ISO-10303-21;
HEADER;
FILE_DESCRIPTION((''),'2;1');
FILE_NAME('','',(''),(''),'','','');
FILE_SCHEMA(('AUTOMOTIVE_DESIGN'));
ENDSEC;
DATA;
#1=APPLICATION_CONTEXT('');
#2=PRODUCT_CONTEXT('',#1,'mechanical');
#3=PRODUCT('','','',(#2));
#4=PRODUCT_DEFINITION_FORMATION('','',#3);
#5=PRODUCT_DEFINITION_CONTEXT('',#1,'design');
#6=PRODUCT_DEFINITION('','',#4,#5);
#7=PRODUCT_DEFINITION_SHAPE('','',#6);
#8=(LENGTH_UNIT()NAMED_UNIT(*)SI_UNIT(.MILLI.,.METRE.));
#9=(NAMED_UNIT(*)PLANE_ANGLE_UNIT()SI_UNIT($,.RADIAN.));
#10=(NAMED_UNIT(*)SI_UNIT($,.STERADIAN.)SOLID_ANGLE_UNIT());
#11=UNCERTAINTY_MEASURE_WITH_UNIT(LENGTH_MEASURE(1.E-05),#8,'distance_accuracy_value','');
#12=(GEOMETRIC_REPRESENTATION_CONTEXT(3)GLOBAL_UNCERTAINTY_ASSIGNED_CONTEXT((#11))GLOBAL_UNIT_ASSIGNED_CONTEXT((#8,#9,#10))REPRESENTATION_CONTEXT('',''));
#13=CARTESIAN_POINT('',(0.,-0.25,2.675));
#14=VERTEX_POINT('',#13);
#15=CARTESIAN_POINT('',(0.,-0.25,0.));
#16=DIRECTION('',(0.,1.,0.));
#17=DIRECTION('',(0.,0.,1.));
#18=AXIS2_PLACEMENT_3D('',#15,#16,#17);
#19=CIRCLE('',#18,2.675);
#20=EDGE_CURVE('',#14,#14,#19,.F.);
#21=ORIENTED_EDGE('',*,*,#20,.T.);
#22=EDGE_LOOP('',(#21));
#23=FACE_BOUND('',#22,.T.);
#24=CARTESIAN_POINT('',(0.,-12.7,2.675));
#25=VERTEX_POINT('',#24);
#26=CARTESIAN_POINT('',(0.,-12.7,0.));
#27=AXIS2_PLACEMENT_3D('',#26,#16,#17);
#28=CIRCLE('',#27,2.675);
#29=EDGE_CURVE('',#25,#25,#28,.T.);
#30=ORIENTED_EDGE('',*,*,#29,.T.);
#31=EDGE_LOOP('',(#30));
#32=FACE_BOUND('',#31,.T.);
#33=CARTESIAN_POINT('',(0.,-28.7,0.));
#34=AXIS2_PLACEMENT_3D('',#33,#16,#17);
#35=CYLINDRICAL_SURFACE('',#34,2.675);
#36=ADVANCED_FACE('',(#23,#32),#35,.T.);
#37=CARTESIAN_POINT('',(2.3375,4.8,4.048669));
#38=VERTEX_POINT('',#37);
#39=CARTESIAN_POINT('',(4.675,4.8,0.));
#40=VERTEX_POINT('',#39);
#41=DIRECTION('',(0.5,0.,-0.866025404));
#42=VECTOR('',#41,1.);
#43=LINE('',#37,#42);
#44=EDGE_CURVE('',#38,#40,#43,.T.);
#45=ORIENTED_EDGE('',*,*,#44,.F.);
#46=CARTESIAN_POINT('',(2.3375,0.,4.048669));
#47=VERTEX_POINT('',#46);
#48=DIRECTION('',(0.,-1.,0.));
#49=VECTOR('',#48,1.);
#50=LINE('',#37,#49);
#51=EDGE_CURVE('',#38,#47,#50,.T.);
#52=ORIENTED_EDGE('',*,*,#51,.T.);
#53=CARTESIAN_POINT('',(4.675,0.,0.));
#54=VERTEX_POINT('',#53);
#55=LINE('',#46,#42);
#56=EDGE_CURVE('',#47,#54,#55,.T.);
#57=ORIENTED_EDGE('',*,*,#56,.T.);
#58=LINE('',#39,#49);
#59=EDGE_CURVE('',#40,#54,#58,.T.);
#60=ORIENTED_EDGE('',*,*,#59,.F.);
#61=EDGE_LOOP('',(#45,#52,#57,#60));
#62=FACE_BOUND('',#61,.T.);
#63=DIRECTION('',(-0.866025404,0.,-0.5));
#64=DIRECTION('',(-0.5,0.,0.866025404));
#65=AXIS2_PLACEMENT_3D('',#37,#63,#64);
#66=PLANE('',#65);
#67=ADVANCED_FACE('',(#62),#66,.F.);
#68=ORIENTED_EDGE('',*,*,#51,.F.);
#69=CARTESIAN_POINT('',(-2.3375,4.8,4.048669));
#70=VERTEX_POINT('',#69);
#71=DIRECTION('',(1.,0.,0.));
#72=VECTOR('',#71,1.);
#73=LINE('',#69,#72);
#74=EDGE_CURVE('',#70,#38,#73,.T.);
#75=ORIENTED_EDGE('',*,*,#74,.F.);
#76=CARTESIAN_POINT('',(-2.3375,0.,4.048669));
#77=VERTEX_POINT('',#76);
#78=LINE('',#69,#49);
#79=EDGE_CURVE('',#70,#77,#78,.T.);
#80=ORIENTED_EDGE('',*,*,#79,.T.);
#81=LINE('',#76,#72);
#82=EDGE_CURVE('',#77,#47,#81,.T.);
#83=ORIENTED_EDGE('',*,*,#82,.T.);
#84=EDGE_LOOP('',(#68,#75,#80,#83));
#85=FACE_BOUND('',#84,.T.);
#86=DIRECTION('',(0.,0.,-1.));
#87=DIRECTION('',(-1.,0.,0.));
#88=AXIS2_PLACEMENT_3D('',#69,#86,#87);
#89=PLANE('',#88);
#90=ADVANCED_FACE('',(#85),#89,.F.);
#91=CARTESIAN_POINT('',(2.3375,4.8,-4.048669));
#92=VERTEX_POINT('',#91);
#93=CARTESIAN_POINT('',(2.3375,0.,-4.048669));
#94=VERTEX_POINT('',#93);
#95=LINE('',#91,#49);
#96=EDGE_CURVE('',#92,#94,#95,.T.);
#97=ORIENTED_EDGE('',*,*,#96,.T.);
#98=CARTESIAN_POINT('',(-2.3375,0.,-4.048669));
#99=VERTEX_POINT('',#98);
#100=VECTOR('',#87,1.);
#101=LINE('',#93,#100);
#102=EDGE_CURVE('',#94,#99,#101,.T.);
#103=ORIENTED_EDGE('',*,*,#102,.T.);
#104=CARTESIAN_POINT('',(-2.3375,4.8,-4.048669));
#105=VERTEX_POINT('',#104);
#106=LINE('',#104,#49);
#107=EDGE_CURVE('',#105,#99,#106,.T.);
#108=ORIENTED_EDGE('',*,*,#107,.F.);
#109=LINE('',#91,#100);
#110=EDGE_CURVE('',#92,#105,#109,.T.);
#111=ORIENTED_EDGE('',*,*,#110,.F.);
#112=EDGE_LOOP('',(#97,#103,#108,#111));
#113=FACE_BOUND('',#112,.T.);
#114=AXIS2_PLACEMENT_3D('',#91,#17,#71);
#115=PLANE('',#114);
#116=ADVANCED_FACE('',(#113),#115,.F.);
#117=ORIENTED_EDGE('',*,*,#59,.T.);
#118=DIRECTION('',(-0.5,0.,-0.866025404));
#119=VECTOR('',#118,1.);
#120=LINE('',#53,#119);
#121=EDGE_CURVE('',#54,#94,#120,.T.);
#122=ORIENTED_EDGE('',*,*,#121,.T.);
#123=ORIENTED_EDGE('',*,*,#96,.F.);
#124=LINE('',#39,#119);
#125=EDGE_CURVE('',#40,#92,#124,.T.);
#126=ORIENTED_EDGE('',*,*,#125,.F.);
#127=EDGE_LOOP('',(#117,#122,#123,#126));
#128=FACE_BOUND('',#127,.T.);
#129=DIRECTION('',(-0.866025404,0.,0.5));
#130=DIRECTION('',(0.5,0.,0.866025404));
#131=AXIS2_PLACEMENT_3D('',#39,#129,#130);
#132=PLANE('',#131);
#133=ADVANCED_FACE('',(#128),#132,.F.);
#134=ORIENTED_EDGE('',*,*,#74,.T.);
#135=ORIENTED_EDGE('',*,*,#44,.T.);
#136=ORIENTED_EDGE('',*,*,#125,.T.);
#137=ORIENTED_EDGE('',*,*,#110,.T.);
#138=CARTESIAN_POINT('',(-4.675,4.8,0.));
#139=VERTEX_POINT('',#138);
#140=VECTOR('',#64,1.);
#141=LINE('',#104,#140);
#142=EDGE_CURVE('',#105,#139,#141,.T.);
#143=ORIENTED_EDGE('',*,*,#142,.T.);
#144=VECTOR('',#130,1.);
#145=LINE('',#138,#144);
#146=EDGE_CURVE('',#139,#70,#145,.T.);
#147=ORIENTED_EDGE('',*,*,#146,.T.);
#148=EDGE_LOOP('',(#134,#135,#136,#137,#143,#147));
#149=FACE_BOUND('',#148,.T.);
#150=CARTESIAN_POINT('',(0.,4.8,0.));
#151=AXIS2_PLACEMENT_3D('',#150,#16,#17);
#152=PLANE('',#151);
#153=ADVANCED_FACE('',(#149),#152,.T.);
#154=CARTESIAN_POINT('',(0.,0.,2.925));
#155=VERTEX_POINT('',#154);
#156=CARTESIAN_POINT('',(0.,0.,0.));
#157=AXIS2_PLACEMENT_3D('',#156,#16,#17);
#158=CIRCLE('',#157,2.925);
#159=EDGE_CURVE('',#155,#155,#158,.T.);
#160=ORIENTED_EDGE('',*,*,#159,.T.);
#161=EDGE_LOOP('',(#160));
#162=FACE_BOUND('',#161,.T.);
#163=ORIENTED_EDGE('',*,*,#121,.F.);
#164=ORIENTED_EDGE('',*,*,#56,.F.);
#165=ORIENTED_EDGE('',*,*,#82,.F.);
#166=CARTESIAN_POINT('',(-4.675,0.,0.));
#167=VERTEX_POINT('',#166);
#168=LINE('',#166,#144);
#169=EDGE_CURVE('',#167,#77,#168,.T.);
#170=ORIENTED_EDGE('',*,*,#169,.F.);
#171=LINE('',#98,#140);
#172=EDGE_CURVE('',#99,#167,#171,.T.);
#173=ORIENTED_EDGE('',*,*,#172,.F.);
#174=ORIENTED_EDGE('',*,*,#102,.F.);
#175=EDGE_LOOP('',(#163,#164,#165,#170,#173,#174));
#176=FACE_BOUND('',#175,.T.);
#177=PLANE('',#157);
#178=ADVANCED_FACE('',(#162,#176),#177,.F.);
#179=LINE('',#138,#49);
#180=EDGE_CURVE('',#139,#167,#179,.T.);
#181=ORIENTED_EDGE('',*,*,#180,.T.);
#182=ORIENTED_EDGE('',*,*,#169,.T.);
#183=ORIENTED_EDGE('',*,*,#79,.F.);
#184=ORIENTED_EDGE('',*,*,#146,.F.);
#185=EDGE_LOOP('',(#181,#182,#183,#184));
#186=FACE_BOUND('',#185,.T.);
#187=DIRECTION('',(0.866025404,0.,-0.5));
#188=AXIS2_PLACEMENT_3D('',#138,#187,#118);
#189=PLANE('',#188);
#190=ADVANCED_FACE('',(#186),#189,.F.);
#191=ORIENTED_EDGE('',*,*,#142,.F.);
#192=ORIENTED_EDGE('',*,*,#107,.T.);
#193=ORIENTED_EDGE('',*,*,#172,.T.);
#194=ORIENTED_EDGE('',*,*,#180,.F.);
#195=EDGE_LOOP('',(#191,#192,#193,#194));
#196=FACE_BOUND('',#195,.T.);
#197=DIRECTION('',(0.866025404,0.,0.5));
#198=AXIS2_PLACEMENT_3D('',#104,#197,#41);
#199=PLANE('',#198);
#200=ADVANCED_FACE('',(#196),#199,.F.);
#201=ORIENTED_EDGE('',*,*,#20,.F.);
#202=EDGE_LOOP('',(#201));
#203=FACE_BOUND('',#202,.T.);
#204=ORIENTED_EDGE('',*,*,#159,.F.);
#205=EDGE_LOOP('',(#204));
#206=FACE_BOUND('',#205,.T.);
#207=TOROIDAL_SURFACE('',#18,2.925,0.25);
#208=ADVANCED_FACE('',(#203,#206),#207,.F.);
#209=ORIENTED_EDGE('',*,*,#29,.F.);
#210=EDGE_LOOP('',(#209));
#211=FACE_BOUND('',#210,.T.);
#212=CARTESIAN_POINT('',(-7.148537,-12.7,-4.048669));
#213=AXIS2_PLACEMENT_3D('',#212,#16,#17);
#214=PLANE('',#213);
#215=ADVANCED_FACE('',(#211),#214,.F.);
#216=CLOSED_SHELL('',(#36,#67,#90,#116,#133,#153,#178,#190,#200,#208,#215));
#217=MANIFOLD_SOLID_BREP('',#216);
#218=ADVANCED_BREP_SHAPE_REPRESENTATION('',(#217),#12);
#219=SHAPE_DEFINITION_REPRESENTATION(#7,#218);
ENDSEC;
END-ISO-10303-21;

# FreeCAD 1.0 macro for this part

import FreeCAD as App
import Part
import Sketcher
from FreeCAD import Vector
Q = App.Units.Quantity


def edges_at(feature, points):
    """Names of the edges that pass closest to the given points."""
    edges = feature.Shape.Edges
    near = lambda p: min(range(len(edges)), key=lambda i: edges[i].distToShape(Part.Vertex(*p))[0])
    return sorted({f"Edge{near(p) + 1}" for p in points})

doc = App.newDocument("Part")
params = doc.addObject("Spreadsheet::Sheet", "Params")
for row, (alias, value) in enumerate([
    ("pad1_length", "4.8 mm"),
    ("sketch2_diameter", "5.35 mm"),
    ("pad2_length", "28.7 mm"),
    ("fillet_radius", "0.25 mm"),
], start=1):
    params.set(f"A{row}", alias)
    params.set(f"B{row}", "=" + value)
    params.setAlias(f"B{row}", alias)

body = doc.addObject("PartDesign::Body", "Body")

sketch1 = doc.addObject("Sketcher::SketchObject", "Sketch")
body.addObject(sketch1)
sketch1.AttachmentSupport = (doc.XZ_Plane, [""])
sketch1.MapMode = "FlatFace"
sketch1.addGeometry([
    Part.LineSegment(Vector(-2.3375, -4.048669, 0), Vector(-4.675, 0, 0)),
    Part.LineSegment(Vector(-4.675, 0, 0), Vector(-2.3375, 4.048669, 0)),
    Part.LineSegment(Vector(-2.3375, 4.048669, 0), Vector(2.3375, 4.048669, 0)),
    Part.LineSegment(Vector(2.3375, 4.048669, 0), Vector(4.675, 0, 0)),
    Part.LineSegment(Vector(4.675, 0, 0), Vector(2.3375, -4.048669, 0)),
    Part.LineSegment(Vector(2.3375, -4.048669, 0), Vector(-2.3375, -4.048669, 0)),
], False)
sketch1.addConstraint([
    Sketcher.Constraint("Coincident", 0, 2, 1, 1),
    Sketcher.Constraint("Coincident", 1, 2, 2, 1),
    Sketcher.Constraint("Coincident", 2, 2, 3, 1),
    Sketcher.Constraint("Coincident", 3, 2, 4, 1),
    Sketcher.Constraint("Coincident", 4, 2, 5, 1),
    Sketcher.Constraint("Coincident", 5, 2, 0, 1),
    Sketcher.Constraint("Horizontal", 2),
    Sketcher.Constraint("Horizontal", 5),
    Sketcher.Constraint("Symmetric", 0, 2, 3, 2, -1, 1),
    Sketcher.Constraint("Symmetric", 1, 2, 4, 2, -1, 1),
    Sketcher.Constraint("PointOnObject", 0, 2, -1),
    Sketcher.Constraint("Parallel", 0, 3),
    Sketcher.Constraint("Vertical", 2, 2, 4, 2),
    Sketcher.Constraint("Angle", 0, Q("120 deg")),
    Sketcher.Constraint("DistanceX", 2, 1, 2, 2, 4.675),
    Sketcher.Constraint("DistanceX", 0, 2, 3, 2, 9.35),
])
pad1 = doc.addObject("PartDesign::Pad", "Pad")
body.addObject(pad1)
pad1.Profile = sketch1
pad1.setExpression("Length", "Params.pad1_length")
pad1.Reversed = True

sketch2 = doc.addObject("Sketcher::SketchObject", "Sketch001")
body.addObject(sketch2)
sketch2.AttachmentSupport = (doc.XZ_Plane, [""])
sketch2.MapMode = "FlatFace"
sketch2.addGeometry(Part.Circle(Vector(0, 0, 0), Vector(0, 0, 1), 2.675), False)
sketch2.addConstraint([
    Sketcher.Constraint("Coincident", 0, 3, -1, 1),
    Sketcher.Constraint("Diameter", 0, 5.35),
])
sketch2.setExpression("Constraints[1]", "Params.sketch2_diameter")
pad2 = doc.addObject("PartDesign::Pad", "Pad001")
body.addObject(pad2)
pad2.Profile = sketch2
pad2.setExpression("Length", "Params.pad2_length")
doc.recompute()

fillet = doc.addObject("PartDesign::Fillet", "Fillet")
body.addObject(fillet)
fillet.Base = (pad2, edges_at(pad2, [(0, 0, 2.675)]))
fillet.setExpression("Radius", "Params.fillet_radius")

sketch3 = doc.addObject("Sketcher::SketchObject", "Sketch002")
body.addObject(sketch3)
sketch3.AttachmentSupport = (doc.XY_Plane, [""])
sketch3.MapMode = "FlatFace"
sketch3.addGeometry([
    Part.LineSegment(Vector(-7.148537, -12.7, 0), Vector(-7.148537, -31.873595, 0)),
    Part.LineSegment(Vector(-7.148537, -31.873595, 0), Vector(8.146007, -31.873595, 0)),
    Part.LineSegment(Vector(8.146007, -31.873595, 0), Vector(8.146007, -12.7, 0)),
    Part.LineSegment(Vector(8.146007, -12.7, 0), Vector(-7.148537, -12.7, 0)),
], False)
sketch3.addConstraint([
    Sketcher.Constraint("Coincident", 0, 2, 1, 1),
    Sketcher.Constraint("Coincident", 1, 2, 2, 1),
    Sketcher.Constraint("Coincident", 2, 2, 3, 1),
    Sketcher.Constraint("Coincident", 3, 2, 0, 1),
    Sketcher.Constraint("Vertical", 0),
    Sketcher.Constraint("Horizontal", 1),
    Sketcher.Constraint("Vertical", 2),
    Sketcher.Constraint("Horizontal", 3),
    Sketcher.Constraint("DistanceY", 2, 2, -1, 1, 12.7),
    Sketcher.Constraint("DistanceX", 1, 1, 1, 2, 15.294544),
    Sketcher.Constraint("DistanceY", 0, 2, 0, 1, 19.173595),
    Sketcher.Constraint("DistanceX", 0, 2, -1, 1, 7.148537),
])
pocket1 = doc.addObject("PartDesign::Pocket", "Pocket")
body.addObject(pocket1)
pocket1.Profile = sketch3
pocket1.Type = "ThroughAll"
pocket1.Midplane = True

doc.recompute()
